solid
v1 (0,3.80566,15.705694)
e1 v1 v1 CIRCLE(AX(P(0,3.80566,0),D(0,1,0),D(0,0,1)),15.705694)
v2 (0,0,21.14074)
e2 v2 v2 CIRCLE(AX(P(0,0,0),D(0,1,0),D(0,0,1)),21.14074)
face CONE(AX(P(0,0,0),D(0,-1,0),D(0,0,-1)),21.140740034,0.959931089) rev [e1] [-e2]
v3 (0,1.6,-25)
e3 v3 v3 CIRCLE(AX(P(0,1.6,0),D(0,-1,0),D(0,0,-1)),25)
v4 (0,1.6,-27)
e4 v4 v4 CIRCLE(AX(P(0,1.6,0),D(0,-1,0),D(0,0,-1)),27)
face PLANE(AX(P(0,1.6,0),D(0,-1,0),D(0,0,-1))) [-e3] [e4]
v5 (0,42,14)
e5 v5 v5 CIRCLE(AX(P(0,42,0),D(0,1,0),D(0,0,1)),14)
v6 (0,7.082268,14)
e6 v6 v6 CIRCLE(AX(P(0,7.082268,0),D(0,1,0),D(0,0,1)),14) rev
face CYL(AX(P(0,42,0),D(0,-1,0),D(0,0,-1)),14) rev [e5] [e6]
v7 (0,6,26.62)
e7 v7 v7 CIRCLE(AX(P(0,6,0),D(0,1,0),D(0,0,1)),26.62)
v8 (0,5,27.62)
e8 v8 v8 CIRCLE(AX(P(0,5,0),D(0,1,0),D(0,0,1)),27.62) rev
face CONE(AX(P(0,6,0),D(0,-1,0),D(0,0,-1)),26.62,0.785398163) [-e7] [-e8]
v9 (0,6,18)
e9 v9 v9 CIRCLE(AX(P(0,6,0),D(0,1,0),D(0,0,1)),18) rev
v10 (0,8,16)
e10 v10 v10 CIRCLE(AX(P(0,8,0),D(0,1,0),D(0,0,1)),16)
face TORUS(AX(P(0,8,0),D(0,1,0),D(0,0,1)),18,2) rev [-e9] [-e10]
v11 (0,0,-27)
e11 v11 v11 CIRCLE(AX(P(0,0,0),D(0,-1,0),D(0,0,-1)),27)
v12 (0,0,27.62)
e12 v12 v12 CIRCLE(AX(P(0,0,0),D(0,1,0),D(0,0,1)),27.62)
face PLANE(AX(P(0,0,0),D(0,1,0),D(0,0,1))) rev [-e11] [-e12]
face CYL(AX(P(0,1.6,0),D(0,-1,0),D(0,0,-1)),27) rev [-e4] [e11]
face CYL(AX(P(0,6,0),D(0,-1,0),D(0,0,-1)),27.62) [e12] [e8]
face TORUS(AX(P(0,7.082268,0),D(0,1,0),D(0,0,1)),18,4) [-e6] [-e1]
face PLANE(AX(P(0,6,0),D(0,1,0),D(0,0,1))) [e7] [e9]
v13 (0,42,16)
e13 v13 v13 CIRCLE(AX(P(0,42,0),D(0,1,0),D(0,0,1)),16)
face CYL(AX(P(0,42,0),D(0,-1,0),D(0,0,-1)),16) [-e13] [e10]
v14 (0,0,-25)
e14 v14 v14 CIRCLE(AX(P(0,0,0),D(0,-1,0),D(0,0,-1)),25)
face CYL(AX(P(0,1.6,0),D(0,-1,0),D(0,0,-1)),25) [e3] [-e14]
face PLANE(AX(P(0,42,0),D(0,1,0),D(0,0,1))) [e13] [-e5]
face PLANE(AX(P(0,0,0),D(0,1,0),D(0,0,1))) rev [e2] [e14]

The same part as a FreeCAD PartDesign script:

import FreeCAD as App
import Part
import Sketcher

V = App.Vector
Q = App.Units.Quantity


def edges_at(feature, points):
    """Names of the edges that pass closest to the given points."""
    edges = feature.Shape.Edges
    near = lambda p: min(range(len(edges)), key=lambda i: edges[i].distToShape(Part.Vertex(*p))[0])
    return sorted({f"Edge{near(p) + 1}" for p in points})

doc = App.newDocument("Part")
params = doc.addObject("Spreadsheet::Sheet", "Params")
for row, (alias, value) in enumerate([
    ("sketch1_diameter", "55.24 mm"),
    ("pad1_length", "6 mm"),
    ("sketch2_diameter", "32 mm"),
    ("sketch2_diameter2", "28 mm"),
    ("pad2_length", "36 mm"),
    ("sketch3_diameter", "28 mm"),
    ("pocket1_length", "36 mm"),
    ("chamfer_size", "5 mm"),
    ("chamfer_size2", "7.14074 mm"),
    ("chamfer2_size", "1 mm"),
    ("sketch4_diameter", "54 mm"),
    ("sketch4_diameter2", "50 mm"),
    ("pocket2_length", "1.6 mm"),
    ("fillet_radius", "2 mm"),
    ("fillet2_radius", "4 mm"),
], start=1):
    params.set(f"A{row}", alias)
    params.set(f"B{row}", "=" + value)
    params.setAlias(f"B{row}", alias)

body = doc.addObject("PartDesign::Body", "Body")

sketch1 = body.newObject("Sketcher::SketchObject", "Sketch")
sketch1.AttachmentSupport = (doc.getObject("XZ_Plane"), [""])
sketch1.MapMode = "FlatFace"
sketch1.addGeometry(Part.Circle(V(0, 0, 0), V(0, 0, 1), 28), False)
sketch1.addConstraint(Sketcher.Constraint("Coincident", 0, 3, -1, 1))
sketch1.addConstraint(Sketcher.Constraint("Diameter", 0, Q("55.24 mm")))
sketch1.setExpression("Constraints[1]", "Params.sketch1_diameter")
pad1 = body.newObject("PartDesign::Pad", "Pad")
pad1.Profile = sketch1
pad1.setExpression("Length", "Params.pad1_length")
pad1.Reversed = True

sketch2 = body.newObject("Sketcher::SketchObject", "Sketch001")
sketch2.AttachmentSupport = (doc.getObject("XZ_Plane"), [""])
sketch2.MapMode = "FlatFace"
sketch2.AttachmentOffset = App.Placement(V(0, 0, -6), App.Rotation())
sketch2.addGeometry(Part.Circle(V(0, 0, 0), V(0, 0, 1), 16), False)
sketch2.addGeometry(Part.Circle(V(0, 0, 0), V(0, 0, 1), 14), False)
sketch2.addConstraint(Sketcher.Constraint("Coincident", 0, 3, -1, 1))
sketch2.addConstraint(Sketcher.Constraint("Coincident", 1, 3, -1, 1))
sketch2.addConstraint(Sketcher.Constraint("Diameter", 0, Q("32 mm")))
sketch2.addConstraint(Sketcher.Constraint("Diameter", 1, Q("28 mm")))
sketch2.setExpression("Constraints[2]", "Params.sketch2_diameter")
sketch2.setExpression("Constraints[3]", "Params.sketch2_diameter2")
pad2 = body.newObject("PartDesign::Pad", "Pad001")
pad2.Profile = sketch2
pad2.setExpression("Length", "Params.pad2_length")
pad2.Reversed = True

sketch3 = body.newObject("Sketcher::SketchObject", "Sketch002")
sketch3.AttachmentSupport = (doc.getObject("XZ_Plane"), [""])
sketch3.MapMode = "FlatFace"
sketch3.AttachmentOffset = App.Placement(V(0, 0, 30), App.Rotation())
sketch3.addGeometry(Part.Circle(V(0, 0, 0), V(0, 0, 1), 14), False)
sketch3.addConstraint(Sketcher.Constraint("Coincident", 0, 3, -1, 1))
sketch3.addConstraint(Sketcher.Constraint("Diameter", 0, Q("28 mm")))
sketch3.setExpression("Constraints[1]", "Params.sketch3_diameter")
pocket1 = body.newObject("PartDesign::Pocket", "Pocket")
pocket1.Profile = sketch3
pocket1.setExpression("Length", "Params.pocket1_length")
doc.recompute()

chamfer = body.newObject("PartDesign::Chamfer", "Chamfer")
chamfer.Base = (pocket1, edges_at(pocket1, [(0, 0, -14)]))
chamfer.ChamferType = "Two distances"
chamfer.setExpression("Size", "Params.chamfer_size")
chamfer.setExpression("Size2", "Params.chamfer_size2")
chamfer.FlipDirection = True
doc.recompute()

chamfer2 = body.newObject("PartDesign::Chamfer", "Chamfer001")
chamfer2.Base = (chamfer, edges_at(chamfer, [(0, 6, -27.62)]))
chamfer2.setExpression("Size", "Params.chamfer2_size")

sketch4 = body.newObject("Sketcher::SketchObject", "Sketch003")
sketch4.AttachmentSupport = (doc.getObject("XZ_Plane"), [""])
sketch4.MapMode = "FlatFace"
sketch4.addGeometry(Part.Circle(V(0, 0, 0), V(0, 0, 1), 27), False)
sketch4.addGeometry(Part.Circle(V(0, 0, 0), V(0, 0, 1), 25), False)
sketch4.addConstraint(Sketcher.Constraint("Coincident", 0, 3, -1, 1))
sketch4.addConstraint(Sketcher.Constraint("Coincident", 1, 3, -1, 1))
sketch4.addConstraint(Sketcher.Constraint("Diameter", 0, Q("54 mm")))
sketch4.addConstraint(Sketcher.Constraint("Diameter", 1, Q("50 mm")))
sketch4.setExpression("Constraints[2]", "Params.sketch4_diameter")
sketch4.setExpression("Constraints[3]", "Params.sketch4_diameter2")
pocket2 = body.newObject("PartDesign::Pocket", "Pocket001")
pocket2.Profile = sketch4
pocket2.setExpression("Length", "Params.pocket2_length")
doc.recompute()

fillet = body.newObject("PartDesign::Fillet", "Fillet")
fillet.Base = (pocket2, edges_at(pocket2, [(0, 6, -16)]))
fillet.setExpression("Radius", "Params.fillet_radius")
doc.recompute()

fillet2 = body.newObject("PartDesign::Fillet", "Fillet001")
fillet2.Base = (fillet, edges_at(fillet, [(0, 5, -14)]))
fillet2.setExpression("Radius", "Params.fillet2_radius")

doc.recompute()
